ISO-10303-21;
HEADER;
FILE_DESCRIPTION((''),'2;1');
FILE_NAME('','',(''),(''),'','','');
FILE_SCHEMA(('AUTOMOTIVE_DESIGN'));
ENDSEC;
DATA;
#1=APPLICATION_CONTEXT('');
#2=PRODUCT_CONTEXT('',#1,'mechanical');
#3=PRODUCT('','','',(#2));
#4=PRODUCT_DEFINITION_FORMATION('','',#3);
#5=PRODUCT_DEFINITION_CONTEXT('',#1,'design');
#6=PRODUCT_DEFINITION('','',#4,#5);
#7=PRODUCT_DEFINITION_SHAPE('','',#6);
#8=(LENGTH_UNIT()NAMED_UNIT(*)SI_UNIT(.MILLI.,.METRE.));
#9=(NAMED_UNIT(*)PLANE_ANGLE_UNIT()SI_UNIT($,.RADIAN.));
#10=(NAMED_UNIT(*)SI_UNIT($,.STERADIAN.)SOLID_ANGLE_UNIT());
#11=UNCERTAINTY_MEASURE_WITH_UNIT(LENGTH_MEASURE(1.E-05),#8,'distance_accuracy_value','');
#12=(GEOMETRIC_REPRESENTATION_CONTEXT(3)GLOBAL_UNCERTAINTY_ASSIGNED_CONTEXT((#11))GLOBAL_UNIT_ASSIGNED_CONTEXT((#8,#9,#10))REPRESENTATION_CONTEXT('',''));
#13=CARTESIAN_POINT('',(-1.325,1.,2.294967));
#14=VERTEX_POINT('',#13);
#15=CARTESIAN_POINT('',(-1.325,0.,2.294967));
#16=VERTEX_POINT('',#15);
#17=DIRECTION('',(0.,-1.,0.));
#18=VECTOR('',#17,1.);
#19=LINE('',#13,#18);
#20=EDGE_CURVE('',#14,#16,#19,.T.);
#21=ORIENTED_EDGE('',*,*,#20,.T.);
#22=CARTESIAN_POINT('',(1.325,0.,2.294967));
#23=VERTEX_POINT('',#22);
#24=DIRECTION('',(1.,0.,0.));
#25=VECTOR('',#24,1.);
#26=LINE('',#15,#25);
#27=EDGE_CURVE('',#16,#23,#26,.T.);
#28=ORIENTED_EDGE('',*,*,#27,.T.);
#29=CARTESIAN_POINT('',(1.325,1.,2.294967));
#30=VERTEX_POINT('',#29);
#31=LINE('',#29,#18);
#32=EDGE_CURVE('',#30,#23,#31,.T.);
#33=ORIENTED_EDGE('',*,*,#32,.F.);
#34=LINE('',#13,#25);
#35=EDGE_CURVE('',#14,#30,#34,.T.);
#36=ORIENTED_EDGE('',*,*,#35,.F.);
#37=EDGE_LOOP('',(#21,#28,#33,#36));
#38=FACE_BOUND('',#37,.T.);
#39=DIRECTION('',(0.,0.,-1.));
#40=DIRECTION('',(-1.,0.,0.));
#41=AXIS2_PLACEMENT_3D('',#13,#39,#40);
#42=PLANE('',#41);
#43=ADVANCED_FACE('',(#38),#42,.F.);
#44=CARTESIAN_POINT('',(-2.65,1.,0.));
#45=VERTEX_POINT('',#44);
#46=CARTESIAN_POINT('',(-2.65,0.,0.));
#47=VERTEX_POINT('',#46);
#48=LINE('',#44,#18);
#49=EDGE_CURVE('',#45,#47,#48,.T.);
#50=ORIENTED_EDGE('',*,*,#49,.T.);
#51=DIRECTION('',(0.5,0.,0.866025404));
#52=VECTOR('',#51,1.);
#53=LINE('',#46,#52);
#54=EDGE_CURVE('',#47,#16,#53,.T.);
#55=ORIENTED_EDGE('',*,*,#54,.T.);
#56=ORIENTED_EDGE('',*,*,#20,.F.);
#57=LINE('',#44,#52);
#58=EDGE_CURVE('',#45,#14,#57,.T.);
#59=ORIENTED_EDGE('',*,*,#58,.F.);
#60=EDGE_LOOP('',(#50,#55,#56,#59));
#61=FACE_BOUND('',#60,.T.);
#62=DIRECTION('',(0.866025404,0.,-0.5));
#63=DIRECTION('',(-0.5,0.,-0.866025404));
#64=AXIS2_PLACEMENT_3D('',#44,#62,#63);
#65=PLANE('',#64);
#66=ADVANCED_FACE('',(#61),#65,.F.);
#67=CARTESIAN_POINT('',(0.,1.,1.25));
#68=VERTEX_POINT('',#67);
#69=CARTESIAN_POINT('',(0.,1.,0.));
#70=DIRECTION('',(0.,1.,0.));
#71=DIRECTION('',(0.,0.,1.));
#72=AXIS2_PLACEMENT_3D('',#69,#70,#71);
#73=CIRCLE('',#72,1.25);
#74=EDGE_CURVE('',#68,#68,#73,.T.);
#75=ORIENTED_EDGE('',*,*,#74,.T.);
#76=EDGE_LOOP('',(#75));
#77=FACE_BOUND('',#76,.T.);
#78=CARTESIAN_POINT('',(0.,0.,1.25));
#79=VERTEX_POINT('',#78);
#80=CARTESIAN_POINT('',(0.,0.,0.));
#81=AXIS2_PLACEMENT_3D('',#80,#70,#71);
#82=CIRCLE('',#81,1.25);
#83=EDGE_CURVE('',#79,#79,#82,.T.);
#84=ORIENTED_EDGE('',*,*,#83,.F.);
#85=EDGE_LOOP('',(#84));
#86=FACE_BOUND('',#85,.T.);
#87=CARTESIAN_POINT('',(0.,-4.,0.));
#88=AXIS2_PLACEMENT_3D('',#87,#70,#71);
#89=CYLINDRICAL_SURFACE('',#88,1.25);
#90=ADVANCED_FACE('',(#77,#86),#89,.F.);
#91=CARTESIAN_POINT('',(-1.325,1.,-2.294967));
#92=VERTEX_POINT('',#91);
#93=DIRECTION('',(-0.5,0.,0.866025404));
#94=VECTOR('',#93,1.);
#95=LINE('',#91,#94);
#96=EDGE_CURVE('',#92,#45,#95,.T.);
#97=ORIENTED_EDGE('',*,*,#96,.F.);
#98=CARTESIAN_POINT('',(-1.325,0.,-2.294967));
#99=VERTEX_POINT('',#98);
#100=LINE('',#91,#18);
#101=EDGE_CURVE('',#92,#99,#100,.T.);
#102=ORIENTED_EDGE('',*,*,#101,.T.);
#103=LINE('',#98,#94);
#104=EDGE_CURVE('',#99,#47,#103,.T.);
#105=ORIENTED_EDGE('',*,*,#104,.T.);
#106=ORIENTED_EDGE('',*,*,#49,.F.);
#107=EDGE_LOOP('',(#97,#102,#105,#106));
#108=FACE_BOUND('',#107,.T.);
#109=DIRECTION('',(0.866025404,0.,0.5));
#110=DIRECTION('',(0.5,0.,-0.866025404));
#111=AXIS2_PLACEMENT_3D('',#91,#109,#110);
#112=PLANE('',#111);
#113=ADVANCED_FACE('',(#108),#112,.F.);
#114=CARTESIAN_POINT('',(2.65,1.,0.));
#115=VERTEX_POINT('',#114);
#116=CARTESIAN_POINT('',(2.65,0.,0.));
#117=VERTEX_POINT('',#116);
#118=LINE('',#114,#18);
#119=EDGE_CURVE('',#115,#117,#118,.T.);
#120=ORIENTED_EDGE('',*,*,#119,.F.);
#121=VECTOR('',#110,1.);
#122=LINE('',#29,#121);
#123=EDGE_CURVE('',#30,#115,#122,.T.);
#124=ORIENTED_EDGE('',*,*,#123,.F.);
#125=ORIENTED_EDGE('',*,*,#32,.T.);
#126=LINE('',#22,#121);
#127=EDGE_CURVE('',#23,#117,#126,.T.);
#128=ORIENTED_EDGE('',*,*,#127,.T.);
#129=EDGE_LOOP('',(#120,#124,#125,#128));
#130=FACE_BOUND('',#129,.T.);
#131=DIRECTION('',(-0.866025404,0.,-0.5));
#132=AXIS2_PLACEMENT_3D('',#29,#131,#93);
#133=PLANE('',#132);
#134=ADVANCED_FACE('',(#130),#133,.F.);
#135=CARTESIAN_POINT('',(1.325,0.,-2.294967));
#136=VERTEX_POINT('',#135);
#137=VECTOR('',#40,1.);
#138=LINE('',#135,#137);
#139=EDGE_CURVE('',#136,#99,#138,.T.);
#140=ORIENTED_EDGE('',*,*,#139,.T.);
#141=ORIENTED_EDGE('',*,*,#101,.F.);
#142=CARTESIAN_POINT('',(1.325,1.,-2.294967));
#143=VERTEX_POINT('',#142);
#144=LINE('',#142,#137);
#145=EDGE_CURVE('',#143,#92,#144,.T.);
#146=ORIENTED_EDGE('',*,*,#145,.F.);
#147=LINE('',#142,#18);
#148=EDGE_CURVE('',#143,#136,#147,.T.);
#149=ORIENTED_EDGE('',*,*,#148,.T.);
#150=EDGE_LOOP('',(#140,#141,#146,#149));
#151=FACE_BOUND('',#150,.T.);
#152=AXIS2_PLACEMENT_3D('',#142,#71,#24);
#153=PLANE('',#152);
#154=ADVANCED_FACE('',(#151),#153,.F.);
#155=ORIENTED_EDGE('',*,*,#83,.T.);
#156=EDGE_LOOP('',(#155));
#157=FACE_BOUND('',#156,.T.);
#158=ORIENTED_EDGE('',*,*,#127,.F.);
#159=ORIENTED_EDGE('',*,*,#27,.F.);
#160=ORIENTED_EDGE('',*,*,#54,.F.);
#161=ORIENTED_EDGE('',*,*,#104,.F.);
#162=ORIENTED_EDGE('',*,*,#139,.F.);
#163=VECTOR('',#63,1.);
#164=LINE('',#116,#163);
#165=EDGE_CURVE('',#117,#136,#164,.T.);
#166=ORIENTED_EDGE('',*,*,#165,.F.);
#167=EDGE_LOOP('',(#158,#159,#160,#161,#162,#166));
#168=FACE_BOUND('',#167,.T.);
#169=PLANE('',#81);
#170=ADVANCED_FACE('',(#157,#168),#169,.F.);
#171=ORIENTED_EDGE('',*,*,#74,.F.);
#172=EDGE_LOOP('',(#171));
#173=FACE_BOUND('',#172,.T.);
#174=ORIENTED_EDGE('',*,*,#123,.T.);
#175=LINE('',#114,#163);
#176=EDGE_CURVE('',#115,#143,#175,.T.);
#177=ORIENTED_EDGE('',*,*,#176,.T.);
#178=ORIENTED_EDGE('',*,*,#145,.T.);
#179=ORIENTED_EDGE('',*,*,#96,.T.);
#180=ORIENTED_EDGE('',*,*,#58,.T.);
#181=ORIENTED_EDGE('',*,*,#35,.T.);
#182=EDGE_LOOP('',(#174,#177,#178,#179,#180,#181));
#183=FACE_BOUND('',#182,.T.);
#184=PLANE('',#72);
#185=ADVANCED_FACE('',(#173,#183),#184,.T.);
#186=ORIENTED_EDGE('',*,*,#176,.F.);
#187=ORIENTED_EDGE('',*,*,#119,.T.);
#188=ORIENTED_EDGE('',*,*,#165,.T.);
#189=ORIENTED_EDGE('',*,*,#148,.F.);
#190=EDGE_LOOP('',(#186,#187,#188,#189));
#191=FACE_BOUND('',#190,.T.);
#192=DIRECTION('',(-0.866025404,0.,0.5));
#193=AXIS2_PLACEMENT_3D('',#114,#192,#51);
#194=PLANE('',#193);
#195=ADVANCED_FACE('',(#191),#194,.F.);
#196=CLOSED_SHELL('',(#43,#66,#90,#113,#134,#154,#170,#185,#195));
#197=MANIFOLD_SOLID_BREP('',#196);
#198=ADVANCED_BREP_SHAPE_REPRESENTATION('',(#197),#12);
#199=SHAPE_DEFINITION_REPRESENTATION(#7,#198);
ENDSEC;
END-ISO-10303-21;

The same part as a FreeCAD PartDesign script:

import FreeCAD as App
import Part
import Sketcher
Q = App.Units.Quantity


def add_polygon(sketch, points):
    """Adds a closed chain of lines whose ends are joined by coincident constraints."""
    first, n = sketch.GeometryCount, len(points)
    for a, b in zip(points, points[1:] + points[:1]):
        sketch.addGeometry(Part.LineSegment(App.Vector(*a, 0), App.Vector(*b, 0)), False)
    for i in range(n):
        sketch.addConstraint(Sketcher.Constraint("Coincident", first + i, 2, first + (i + 1) % n, 1))

doc = App.newDocument("Part")
body = doc.addObject("PartDesign::Body", "Body")

# Sketch on XZ plane
sketch1 = body.newObject("Sketcher::SketchObject", "Sketch")
sketch1.AttachmentSupport = (doc.getObject("XZ_Plane"), [""])
sketch1.MapMode = "FlatFace"
add_polygon(sketch1, [(1.325, 2.294967), (2.65, 0), (1.325, -2.294967), (-1.325, -2.294967), (-2.65, 0), (-1.325, 2.294967)])  # lines 0-5
sketch1.addConstraint([
    Sketcher.Constraint("Horizontal", 2),
    Sketcher.Constraint("Horizontal", 5),
    Sketcher.Constraint("Symmetric", 0, 2, 3, 2, -1, 1),
    Sketcher.Constraint("Symmetric", 1, 2, 4, 2, -1, 1),
    Sketcher.Constraint("PointOnObject", 0, 2, -1),
    Sketcher.Constraint("Parallel", 0, 3),
    Sketcher.Constraint("Vertical", 2, 2, 4, 2),
    Sketcher.Constraint("Angle", 0, Q("-60 deg")),
    Sketcher.Constraint("DistanceX", 2, 2, 2, 1, Q("2.65 mm")),
    Sketcher.Constraint("DistanceX", 3, 2, 0, 2, Q("5.3 mm")),
])
pad1 = body.newObject("PartDesign::Pad", "Pad")
pad1.Profile = sketch1
pad1.Length = 1
pad1.Reversed = True

# Sketch on XZ plane
sketch2 = body.newObject("Sketcher::SketchObject", "Sketch001")
sketch2.AttachmentSupport = (doc.getObject("XZ_Plane"), [""])
sketch2.MapMode = "FlatFace"
sketch2.AttachmentOffset = App.Placement(App.Vector(0, 0, -1), App.Rotation())
sketch2.addGeometry(Part.Circle(App.Vector(0, 0, 0), App.Vector(0, 0, 1), 1.25), False)
sketch2.addConstraint([
    Sketcher.Constraint("Coincident", 0, 3, -1, 1),
    Sketcher.Constraint("Diameter", 0, Q("2.5 mm")),
])
pocket1 = body.newObject("PartDesign::Pocket", "Pocket")
pocket1.Profile = sketch2
pocket1.Length = 5
pocket1.Reversed = True

doc.recompute()
